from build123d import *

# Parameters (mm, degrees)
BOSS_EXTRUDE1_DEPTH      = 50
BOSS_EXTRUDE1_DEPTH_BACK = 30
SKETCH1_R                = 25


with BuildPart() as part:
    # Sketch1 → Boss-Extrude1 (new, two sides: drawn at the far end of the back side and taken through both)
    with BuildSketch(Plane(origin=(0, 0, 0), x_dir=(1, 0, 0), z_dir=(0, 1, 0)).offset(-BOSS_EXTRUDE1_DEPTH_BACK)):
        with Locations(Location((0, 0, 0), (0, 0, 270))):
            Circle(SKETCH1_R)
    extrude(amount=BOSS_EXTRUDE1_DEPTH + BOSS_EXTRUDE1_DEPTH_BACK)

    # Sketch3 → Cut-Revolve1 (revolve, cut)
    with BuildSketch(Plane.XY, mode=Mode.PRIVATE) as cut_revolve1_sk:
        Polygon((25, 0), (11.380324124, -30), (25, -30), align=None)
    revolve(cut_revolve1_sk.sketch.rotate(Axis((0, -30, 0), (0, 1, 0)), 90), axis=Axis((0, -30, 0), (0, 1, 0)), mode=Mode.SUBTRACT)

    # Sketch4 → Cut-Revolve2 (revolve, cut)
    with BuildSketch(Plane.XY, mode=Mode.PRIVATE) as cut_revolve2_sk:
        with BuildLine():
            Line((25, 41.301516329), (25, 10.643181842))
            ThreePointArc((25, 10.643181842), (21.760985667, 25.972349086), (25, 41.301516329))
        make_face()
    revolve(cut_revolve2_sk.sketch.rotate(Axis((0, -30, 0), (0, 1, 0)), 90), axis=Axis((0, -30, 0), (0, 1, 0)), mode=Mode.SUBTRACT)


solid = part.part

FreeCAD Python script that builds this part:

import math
import FreeCAD as App
import Part
import Sketcher

V = App.Vector

doc = App.newDocument("Part")
body = doc.addObject("PartDesign::Body", "Body")

# Sketch on XZ plane
sketch1 = body.newObject("Sketcher::SketchObject", "Sketch")
sketch1.AttachmentSupport = (doc.getObject("XZ_Plane"), [""])
sketch1.MapMode = "FlatFace"
sketch1.addGeometry(Part.Circle(V(0, 0, 0), V(0, 0, 1), 25), False)
sketch1.addConstraint([
    Sketcher.Constraint("Coincident", 0, 3, -1, 1),
    Sketcher.Constraint("Diameter", 0, 50.0),
])
pad1 = body.newObject("PartDesign::Pad", "Pad")
pad1.Profile = sketch1
pad1.Type = "TwoLengths"
pad1.Length = 50
pad1.Length2 = 30
pad1.Reversed = True

# Sketch on XY plane
sketch2 = body.newObject("Sketcher::SketchObject", "Sketch001")
sketch2.AttachmentSupport = (doc.getObject("XY_Plane"), [""])
sketch2.MapMode = "FlatFace"
sketch2.addGeometry([
    Part.LineSegment(V(25, 0, 0), V(11, -30, 0)),
    Part.LineSegment(V(11, -30, 0), V(25, -30, 0)),
    Part.LineSegment(V(25, -30, 0), V(25, 0, 0)),
], False)
sketch2.addConstraint([
    Sketcher.Constraint("Coincident", 0, 2, 1, 1),
    Sketcher.Constraint("Coincident", 1, 2, 2, 1),
    Sketcher.Constraint("Coincident", 2, 2, 0, 1),
    Sketcher.Constraint("Horizontal", 1),
    Sketcher.Constraint("Vertical", 2),
    Sketcher.Constraint("PointOnObject", 2, 2, -1),
    Sketcher.Constraint("DistanceY", 2, 1, 2, 2, 30.0),
    Sketcher.Constraint("DistanceX", -1, 1, 1, 2, 25.0),
    Sketcher.Constraint("Distance", 0, 32.94686),
])
groove = body.newObject("PartDesign::Groove", "Groove")
groove.Profile = sketch2
groove.ReferenceAxis = (sketch2, ["V_Axis"])
groove.Angle = 360

# Sketch on XY plane
sketch3 = body.newObject("Sketcher::SketchObject", "Sketch002")
sketch3.AttachmentSupport = (doc.getObject("XY_Plane"), [""])
sketch3.MapMode = "FlatFace"
sketch3.addGeometry([
    Part.LineSegment(V(25, 11, 0), V(25, 41, 0)),
    Part.ArcOfCircle(Part.Circle(V(60, 26, 0), V(0, 0, 1), 38), math.radians(156), math.radians(204)),
], False)
sketch3.addConstraint([
    Sketcher.Constraint("Coincident", 0, 1, 1, 2),
    Sketcher.Constraint("Coincident", 1, 1, 0, 2),
    Sketcher.Constraint("Vertical", 0),
    Sketcher.Constraint("DistanceX", -1, 1, 0, 1, 25.0),
    Sketcher.Constraint("Radius", 1, 37.893408),
    Sketcher.Constraint("DistanceY", 0, 1, 0, 2, 30.658334),
    Sketcher.Constraint("DistanceY", -1, 1, 1, 3, 25.972349),
])
groove2 = body.newObject("PartDesign::Groove", "Groove001")
groove2.Profile = sketch3
groove2.ReferenceAxis = (sketch3, ["V_Axis"])
groove2.Angle = 360

doc.recompute()
